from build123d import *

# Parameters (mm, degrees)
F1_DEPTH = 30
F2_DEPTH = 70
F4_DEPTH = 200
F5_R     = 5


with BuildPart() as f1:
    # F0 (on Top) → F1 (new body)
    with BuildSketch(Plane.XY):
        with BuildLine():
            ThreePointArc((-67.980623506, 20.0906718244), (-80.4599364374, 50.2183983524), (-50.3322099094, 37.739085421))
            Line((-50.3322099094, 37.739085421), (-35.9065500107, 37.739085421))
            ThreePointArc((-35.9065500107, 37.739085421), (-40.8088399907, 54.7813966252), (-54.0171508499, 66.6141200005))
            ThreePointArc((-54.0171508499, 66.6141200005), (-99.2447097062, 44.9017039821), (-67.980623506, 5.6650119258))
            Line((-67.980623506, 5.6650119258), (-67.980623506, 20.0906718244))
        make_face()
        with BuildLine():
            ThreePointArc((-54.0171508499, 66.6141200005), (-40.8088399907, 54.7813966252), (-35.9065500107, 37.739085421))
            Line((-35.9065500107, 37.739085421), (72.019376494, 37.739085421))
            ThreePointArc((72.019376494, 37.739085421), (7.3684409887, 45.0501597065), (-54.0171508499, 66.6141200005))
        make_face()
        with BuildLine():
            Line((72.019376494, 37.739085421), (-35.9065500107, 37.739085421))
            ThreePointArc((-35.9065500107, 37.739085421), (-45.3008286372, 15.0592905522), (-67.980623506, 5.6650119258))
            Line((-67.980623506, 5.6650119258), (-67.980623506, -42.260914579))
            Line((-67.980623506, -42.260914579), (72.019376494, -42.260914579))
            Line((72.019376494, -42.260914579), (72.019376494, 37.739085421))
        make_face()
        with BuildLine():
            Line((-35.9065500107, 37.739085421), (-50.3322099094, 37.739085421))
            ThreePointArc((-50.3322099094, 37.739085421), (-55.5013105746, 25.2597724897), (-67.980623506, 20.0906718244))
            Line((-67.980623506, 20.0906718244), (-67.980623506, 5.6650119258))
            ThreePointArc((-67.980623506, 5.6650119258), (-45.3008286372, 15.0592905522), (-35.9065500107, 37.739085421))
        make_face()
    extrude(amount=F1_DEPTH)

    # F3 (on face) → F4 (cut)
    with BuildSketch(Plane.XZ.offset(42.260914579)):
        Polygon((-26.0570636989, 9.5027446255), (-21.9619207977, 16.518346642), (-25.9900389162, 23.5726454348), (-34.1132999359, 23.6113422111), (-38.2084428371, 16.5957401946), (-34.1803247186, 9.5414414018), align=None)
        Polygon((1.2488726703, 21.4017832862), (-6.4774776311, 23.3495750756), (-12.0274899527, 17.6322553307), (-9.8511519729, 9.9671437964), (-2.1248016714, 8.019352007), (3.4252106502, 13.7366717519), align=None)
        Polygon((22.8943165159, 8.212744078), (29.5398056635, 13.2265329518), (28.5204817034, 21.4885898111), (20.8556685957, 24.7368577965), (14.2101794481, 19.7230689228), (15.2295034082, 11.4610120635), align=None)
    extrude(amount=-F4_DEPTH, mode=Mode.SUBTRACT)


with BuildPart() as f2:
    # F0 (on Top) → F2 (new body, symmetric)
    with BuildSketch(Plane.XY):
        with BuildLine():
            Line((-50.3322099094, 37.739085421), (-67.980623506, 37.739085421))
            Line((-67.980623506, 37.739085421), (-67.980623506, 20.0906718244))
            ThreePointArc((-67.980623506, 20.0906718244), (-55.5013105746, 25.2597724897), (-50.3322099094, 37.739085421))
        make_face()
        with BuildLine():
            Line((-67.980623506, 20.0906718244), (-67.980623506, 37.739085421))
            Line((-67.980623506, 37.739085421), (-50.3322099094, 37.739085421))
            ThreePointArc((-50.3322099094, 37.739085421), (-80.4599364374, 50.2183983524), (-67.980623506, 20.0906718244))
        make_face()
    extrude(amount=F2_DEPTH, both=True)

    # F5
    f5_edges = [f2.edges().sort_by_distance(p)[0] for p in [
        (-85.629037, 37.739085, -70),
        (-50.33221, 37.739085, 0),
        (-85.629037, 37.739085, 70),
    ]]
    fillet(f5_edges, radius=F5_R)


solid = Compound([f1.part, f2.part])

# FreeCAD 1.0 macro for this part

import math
import FreeCAD as App
import Part
import Sketcher

V = App.Vector
Q = App.Units.Quantity


def edges_at(feature, points):
    """Names of the edges that pass closest to the given points."""
    edges = feature.Shape.Edges
    near = lambda p: min(range(len(edges)), key=lambda i: edges[i].distToShape(Part.Vertex(*p))[0])
    return sorted({f"Edge{near(p) + 1}" for p in points})


def add_polygon(sketch, points):
    """Adds a closed chain of lines whose ends are joined by coincident constraints."""
    first, n = sketch.GeometryCount, len(points)
    for a, b in zip(points, points[1:] + points[:1]):
        sketch.addGeometry(Part.LineSegment(App.Vector(*a, 0), App.Vector(*b, 0)), False)
    for i in range(n):
        sketch.addConstraint(Sketcher.Constraint("Coincident", first + i, 2, first + (i + 1) % n, 1))

doc = App.newDocument("Part")
params = doc.addObject("Spreadsheet::Sheet", "Params")
for row, (alias, value) in enumerate([
    ("sketch1_width", "140 mm"),
    ("sketch1_height", "80 mm"),
    ("pad1_length", "30 mm"),
    ("pocket1_length", "200 mm"),
    ("pad2_length", "140 mm"),
    ("fillet_radius", "5 mm"),
], start=1):
    params.set(f"A{row}", alias)
    params.set(f"B{row}", "=" + value)
    params.setAlias(f"B{row}", alias)

body = doc.addObject("PartDesign::Body", "Body")

# Sketch on XY plane
sketch1 = body.newObject("Sketcher::SketchObject", "Sketch")
sketch1.AttachmentSupport = (doc.getObject("XY_Plane"), [""])
sketch1.MapMode = "FlatFace"
sketch1.addGeometry([
    Part.ArcOfCircle(Part.Circle(V(-68, 38, 0), V(0, 0, 1), 32), math.radians(64), math.radians(270)),  # 0
    Part.LineSegment(V(-68, 6, 0), V(-68, -42, 0)),  # 1
    Part.LineSegment(V(-68, -42, 0), V(72, -42, 0)),  # 2
    Part.LineSegment(V(72, -42, 0), V(72, 38, 0)),  # 3
    Part.ArcOfCircle(Part.Circle(V(72, 327, 0), V(0, 0, 1), 290), math.radians(-116), math.radians(-90)),  # 4
    Part.ArcOfCircle(Part.Circle(V(-68, 38, 0), V(0, 0, 1), 18), math.radians(0), math.radians(270)),  # 5
    Part.ArcOfCircle(Part.Circle(V(-68, 38, 0), V(0, 0, 1), 18), math.radians(-90), math.radians(0)),  # 6
], False)
sketch1.addConstraint([
    Sketcher.Constraint("Coincident", 0, 2, 1, 1),
    Sketcher.Constraint("Coincident", 1, 2, 2, 1),
    Sketcher.Constraint("Coincident", 2, 2, 3, 1),
    Sketcher.Constraint("Coincident", 3, 2, 4, 2),
    Sketcher.Constraint("Tangent", 4, 1, 0, 1),
    Sketcher.Constraint("Tangent", 5, 1, 6, 2),
    Sketcher.Constraint("Coincident", 6, 1, 5, 2),
    Sketcher.Constraint("Vertical", 1),
    Sketcher.Constraint("Horizontal", 2),
    Sketcher.Constraint("Vertical", 3),
    Sketcher.Constraint("Coincident", 5, 3, 0, 3),
    Sketcher.Constraint("Horizontal", 6, 3, 3, 2),
    Sketcher.Constraint("Horizontal", 3, 2, 5, 1),
    Sketcher.Constraint("Vertical", 6, 3, 0, 2),
    Sketcher.Constraint("Vertical", 4, 3, 2, 2),
    Sketcher.Constraint("Vertical", 1, 2, 6, 1),
    Sketcher.Constraint("DistanceX", 2, 1, 2, 2, Q("140 mm")),
    Sketcher.Constraint("DistanceY", 3, 1, 3, 2, Q("80 mm")),
    Sketcher.Constraint("Radius", 0, Q("32.074073 mm")),
    Sketcher.Constraint("Radius", 5, Q("17.648414 mm")),
    Sketcher.Constraint("DistanceY", -1, 1, 4, 3, Q("327.244779 mm")),
    Sketcher.Constraint("DistanceX", 5, 1, -1, 1, Q("50.33221 mm")),
])
sketch1.setExpression("Constraints[16]", "Params.sketch1_width")
sketch1.setExpression("Constraints[17]", "Params.sketch1_height")
pad1 = body.newObject("PartDesign::Pad", "Pad")
pad1.Profile = sketch1
pad1.setExpression("Length", "Params.pad1_length")

# Sketch on XZ plane
sketch2 = body.newObject("Sketcher::SketchObject", "Sketch001")
sketch2.AttachmentSupport = (doc.getObject("XZ_Plane"), [""])
sketch2.MapMode = "FlatFace"
sketch2.AttachmentOffset = App.Placement(V(0, 0, 42.260915), App.Rotation())
add_polygon(sketch2, [(-26, 10), (-22, 17), (-26, 24), (-34, 24), (-38, 17), (-34, 10)])  # lines 0-5
add_polygon(sketch2, [(1, 21), (-6, 23), (-12, 18), (-10, 10), (-2, 8), (3, 14)])  # lines 6-11
add_polygon(sketch2, [(23, 8), (30, 13), (29, 21), (21, 25), (14, 20), (15, 11)])  # lines 12-17
sketch2.addConstraint([
    Sketcher.Constraint("Parallel", 0, 3),
    Sketcher.Constraint("Parallel", 1, 4),
    Sketcher.Constraint("Parallel", 2, 5),
    Sketcher.Constraint("Parallel", 6, 9),
    Sketcher.Constraint("Parallel", 7, 10),
    Sketcher.Constraint("Parallel", 8, 11),
    Sketcher.Constraint("Parallel", 12, 15),
    Sketcher.Constraint("Parallel", 13, 16),
    Sketcher.Constraint("Parallel", 14, 17),
    Sketcher.Constraint("Equal", 0, 1),
    Sketcher.Constraint("Equal", 1, 2),
    Sketcher.Constraint("Equal", 2, 3),
    Sketcher.Constraint("Equal", 6, 7),
    Sketcher.Constraint("Equal", 7, 8),
    Sketcher.Constraint("Equal", 8, 9),
    Sketcher.Constraint("Equal", 12, 13),
    Sketcher.Constraint("Equal", 13, 14),
    Sketcher.Constraint("Equal", 14, 15),
    Sketcher.Constraint("Distance", 12, Q("8.324698 mm")),
    Sketcher.Constraint("DistanceX", 2, 2, -1, 1, Q("34.1133 mm")),
    Sketcher.Constraint("DistanceX", 9, 2, -1, 1, Q("2.124802 mm")),
    Sketcher.Constraint("DistanceY", 0, 2, 1, 2, Q("7.054299 mm")),
    Sketcher.Constraint("DistanceY", 4, 2, 2, 2, Q("14.069901 mm")),
    Sketcher.Constraint("DistanceY", 5, 2, 8, 2, Q("0.464399 mm")),
    Sketcher.Constraint("DistanceX", 7, 2, 10, 2, Q("15.452701 mm")),
    Sketcher.Constraint("DistanceX", 0, 2, -1, 1, Q("21.961921 mm")),
    Sketcher.Constraint("DistanceY", -1, 1, 3, 2, Q("16.59574 mm")),
    Sketcher.Constraint("DistanceX", 7, 2, -1, 1, Q("12.02749 mm")),
    Sketcher.Constraint("DistanceX", 8, 2, -1, 1, Q("9.851152 mm")),
    Sketcher.Constraint("DistanceY", -1, 1, 10, 2, Q("13.736672 mm")),
    Sketcher.Constraint("DistanceX", -1, 1, 13, 2, Q("28.520482 mm")),
    Sketcher.Constraint("DistanceY", -1, 1, 13, 2, Q("21.48859 mm")),
    Sketcher.Constraint("DistanceX", -1, 1, 14, 2, Q("20.855669 mm")),
    Sketcher.Constraint("DistanceX", -1, 1, 15, 2, Q("14.210179 mm")),
    Sketcher.Constraint("DistanceY", 0, 2, 6, 2, Q("6.831228 mm")),
    Sketcher.Constraint("DistanceY", 12, 2, 10, 2, Q("0.510139 mm")),
])
pocket1 = body.newObject("PartDesign::Pocket", "Pocket")
pocket1.Profile = sketch2
pocket1.setExpression("Length", "Params.pocket1_length")
body2 = doc.addObject("PartDesign::Body", "Body001")

# Sketch on XY plane
sketch3 = body2.newObject("Sketcher::SketchObject", "Sketch002")
sketch3.AttachmentSupport = (doc.getObject("XY_Plane001"), [""])
sketch3.MapMode = "FlatFace"
sketch3.addGeometry([
    Part.ArcOfCircle(Part.Circle(V(-68, 38, 0), V(0, 0, 1), 18), math.radians(-90), math.radians(0)),
    Part.ArcOfCircle(Part.Circle(V(-68, 38, 0), V(0, 0, 1), 18), math.radians(0), math.radians(270)),
], False)
sketch3.addConstraint([
    Sketcher.Constraint("Tangent", 0, 1, 1, 2),
    Sketcher.Constraint("Coincident", 1, 1, 0, 2),
    Sketcher.Constraint("Horizontal", 0, 3, 1, 1),
    Sketcher.Constraint("Vertical", 1, 3, 0, 1),
    Sketcher.Constraint("Radius", 0, Q("17.648414 mm")),
    Sketcher.Constraint("DistanceY", -1, 1, 0, 1, Q("20.090672 mm")),
    Sketcher.Constraint("DistanceX", 1, 1, -1, 1, Q("50.33221 mm")),
])
pad2 = body2.newObject("PartDesign::Pad", "Pad001")
pad2.Profile = sketch3
pad2.setExpression("Length", "Params.pad2_length")
pad2.Midplane = True
doc.recompute()

fillet = body2.newObject("PartDesign::Fillet", "Fillet")
fillet.Base = (pad2, edges_at(pad2, [(-80.46, 50.218, -70), (-55.501, 25.26, 0), (-80.46, 50.218, 70)]))
fillet.setExpression("Radius", "Params.fillet_radius")

doc.recompute()
